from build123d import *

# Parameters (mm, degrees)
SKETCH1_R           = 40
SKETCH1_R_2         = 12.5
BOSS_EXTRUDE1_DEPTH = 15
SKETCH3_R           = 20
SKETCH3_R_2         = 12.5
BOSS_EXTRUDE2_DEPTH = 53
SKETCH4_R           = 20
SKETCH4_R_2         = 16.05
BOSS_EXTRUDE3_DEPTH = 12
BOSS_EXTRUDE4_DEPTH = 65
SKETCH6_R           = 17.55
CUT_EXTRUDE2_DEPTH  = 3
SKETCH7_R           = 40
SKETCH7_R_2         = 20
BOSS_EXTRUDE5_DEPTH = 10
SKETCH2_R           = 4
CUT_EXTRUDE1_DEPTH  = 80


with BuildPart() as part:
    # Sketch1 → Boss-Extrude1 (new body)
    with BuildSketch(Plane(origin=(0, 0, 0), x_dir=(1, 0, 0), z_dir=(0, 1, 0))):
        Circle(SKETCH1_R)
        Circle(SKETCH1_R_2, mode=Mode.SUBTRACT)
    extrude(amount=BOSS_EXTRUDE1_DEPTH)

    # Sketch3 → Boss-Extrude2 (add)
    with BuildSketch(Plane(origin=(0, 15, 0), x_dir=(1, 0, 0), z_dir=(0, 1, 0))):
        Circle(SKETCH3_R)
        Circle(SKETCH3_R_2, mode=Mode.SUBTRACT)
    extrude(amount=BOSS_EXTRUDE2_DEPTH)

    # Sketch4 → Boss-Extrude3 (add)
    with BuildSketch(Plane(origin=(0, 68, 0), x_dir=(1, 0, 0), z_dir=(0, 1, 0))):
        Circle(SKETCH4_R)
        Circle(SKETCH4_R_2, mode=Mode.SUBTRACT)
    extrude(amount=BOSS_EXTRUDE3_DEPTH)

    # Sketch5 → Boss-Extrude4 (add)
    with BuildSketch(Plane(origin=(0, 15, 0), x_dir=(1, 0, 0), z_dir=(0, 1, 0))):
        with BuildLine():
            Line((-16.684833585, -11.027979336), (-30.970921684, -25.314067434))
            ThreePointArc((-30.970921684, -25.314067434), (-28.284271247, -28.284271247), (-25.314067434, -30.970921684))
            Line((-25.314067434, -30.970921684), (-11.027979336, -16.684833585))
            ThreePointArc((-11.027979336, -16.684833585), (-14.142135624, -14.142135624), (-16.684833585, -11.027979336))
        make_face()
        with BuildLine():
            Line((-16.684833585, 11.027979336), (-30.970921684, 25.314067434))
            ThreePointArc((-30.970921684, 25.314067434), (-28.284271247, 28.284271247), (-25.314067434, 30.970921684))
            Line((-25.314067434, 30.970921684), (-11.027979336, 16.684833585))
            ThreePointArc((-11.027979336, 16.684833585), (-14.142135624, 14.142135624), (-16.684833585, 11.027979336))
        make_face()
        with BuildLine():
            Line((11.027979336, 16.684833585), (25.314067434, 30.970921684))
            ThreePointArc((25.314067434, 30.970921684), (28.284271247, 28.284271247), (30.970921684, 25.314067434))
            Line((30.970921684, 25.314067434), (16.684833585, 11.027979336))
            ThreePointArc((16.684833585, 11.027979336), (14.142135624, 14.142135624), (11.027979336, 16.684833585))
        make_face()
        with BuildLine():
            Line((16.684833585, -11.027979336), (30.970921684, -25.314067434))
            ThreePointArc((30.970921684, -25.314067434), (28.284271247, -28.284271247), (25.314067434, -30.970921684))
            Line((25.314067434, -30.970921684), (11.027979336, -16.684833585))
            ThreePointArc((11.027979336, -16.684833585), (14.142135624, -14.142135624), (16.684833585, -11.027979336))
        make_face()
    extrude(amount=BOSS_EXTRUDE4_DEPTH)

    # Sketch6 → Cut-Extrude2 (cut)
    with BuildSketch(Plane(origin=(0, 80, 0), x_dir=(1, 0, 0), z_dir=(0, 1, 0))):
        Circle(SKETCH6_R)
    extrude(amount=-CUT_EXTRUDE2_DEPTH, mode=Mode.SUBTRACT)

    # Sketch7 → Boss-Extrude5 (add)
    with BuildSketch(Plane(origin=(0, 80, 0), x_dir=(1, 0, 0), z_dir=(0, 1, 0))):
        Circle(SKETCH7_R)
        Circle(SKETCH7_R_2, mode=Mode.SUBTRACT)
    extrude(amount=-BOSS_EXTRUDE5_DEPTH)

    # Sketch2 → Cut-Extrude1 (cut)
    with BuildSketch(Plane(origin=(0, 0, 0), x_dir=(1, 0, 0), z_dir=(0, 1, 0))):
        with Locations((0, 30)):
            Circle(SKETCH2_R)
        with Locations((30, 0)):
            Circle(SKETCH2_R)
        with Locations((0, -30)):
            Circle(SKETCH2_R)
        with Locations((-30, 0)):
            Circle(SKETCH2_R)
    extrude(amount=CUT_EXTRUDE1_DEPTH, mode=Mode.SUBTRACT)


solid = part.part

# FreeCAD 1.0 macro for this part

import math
import FreeCAD as App
import Part
import Sketcher

V = App.Vector

doc = App.newDocument("Part")
body = doc.addObject("PartDesign::Body", "Body")

sketch1 = body.newObject("Sketcher::SketchObject", "Sketch")
sketch1.AttachmentSupport = (doc.getObject("XZ_Plane"), [""])
sketch1.MapMode = "FlatFace"
sketch1.addGeometry(Part.Circle(V(0, 0, 0), V(0, 0, 1), 40), False)
sketch1.addGeometry(Part.Circle(V(0, 0, 0), V(0, 0, 1), 12), False)
sketch1.addConstraint(Sketcher.Constraint("Coincident", 0, 3, -1, 1))
sketch1.addConstraint(Sketcher.Constraint("Coincident", 1, 3, -1, 1))
sketch1.addConstraint(Sketcher.Constraint("Diameter", 0, 80.0))
sketch1.addConstraint(Sketcher.Constraint("Diameter", 1, 25.0))
pad1 = body.newObject("PartDesign::Pad", "Pad")
pad1.Profile = sketch1
pad1.Length = 15
pad1.Reversed = True

sketch2 = body.newObject("Sketcher::SketchObject", "Sketch001")
sketch2.AttachmentSupport = (doc.getObject("XZ_Plane"), [""])
sketch2.MapMode = "FlatFace"
sketch2.AttachmentOffset = App.Placement(V(0, 0, -15), App.Rotation())
sketch2.addGeometry(Part.Circle(V(0, 0, 0), V(0, 0, 1), 20), False)
sketch2.addGeometry(Part.Circle(V(0, 0, 0), V(0, 0, 1), 12), False)
sketch2.addConstraint(Sketcher.Constraint("Coincident", 0, 3, -1, 1))
sketch2.addConstraint(Sketcher.Constraint("Coincident", 1, 3, -1, 1))
sketch2.addConstraint(Sketcher.Constraint("Diameter", 0, 40.0))
sketch2.addConstraint(Sketcher.Constraint("Diameter", 1, 25.0))
pad2 = body.newObject("PartDesign::Pad", "Pad001")
pad2.Profile = sketch2
pad2.Length = 53
pad2.Reversed = True

sketch3 = body.newObject("Sketcher::SketchObject", "Sketch002")
sketch3.AttachmentSupport = (doc.getObject("XZ_Plane"), [""])
sketch3.MapMode = "FlatFace"
sketch3.AttachmentOffset = App.Placement(V(0, 0, -68), App.Rotation())
sketch3.addGeometry(Part.Circle(V(0, 0, 0), V(0, 0, 1), 20), False)
sketch3.addGeometry(Part.Circle(V(0, 0, 0), V(0, 0, 1), 16), False)
sketch3.addConstraint(Sketcher.Constraint("Coincident", 0, 3, -1, 1))
sketch3.addConstraint(Sketcher.Constraint("Coincident", 1, 3, -1, 1))
sketch3.addConstraint(Sketcher.Constraint("Diameter", 0, 40.0))
sketch3.addConstraint(Sketcher.Constraint("Diameter", 1, 32.1))
pad3 = body.newObject("PartDesign::Pad", "Pad002")
pad3.Profile = sketch3
pad3.Length = 12
pad3.Reversed = True

sketch4 = body.newObject("Sketcher::SketchObject", "Sketch003")
sketch4.AttachmentSupport = (doc.getObject("XZ_Plane"), [""])
sketch4.MapMode = "FlatFace"
sketch4.AttachmentOffset = App.Placement(V(0, 0, -15), App.Rotation())
sketch4.addGeometry(Part.LineSegment(V(-17, 11, 0), V(-31, 25, 0)), False)
sketch4.addGeometry(Part.ArcOfCircle(Part.Circle(V(0, 0, 0), V(0, 0, 1), 40), math.radians(129.26), math.radians(140.74)), False)
sketch4.addGeometry(Part.LineSegment(V(-25, 31, 0), V(-11, 17, 0)), False)
sketch4.addGeometry(Part.ArcOfCircle(Part.Circle(V(0, 0, 0), V(0, 0, 1), 20), math.radians(123), math.radians(147)), False)
sketch4.addGeometry(Part.LineSegment(V(-31, -25, 0), V(-17, -11, 0)), False)
sketch4.addGeometry(Part.ArcOfCircle(Part.Circle(V(0, 0, 0), V(0, 0, 1), 20), math.radians(-147), math.radians(-123)), False)
sketch4.addGeometry(Part.LineSegment(V(-11, -17, 0), V(-25, -31, 0)), False)
sketch4.addGeometry(Part.ArcOfCircle(Part.Circle(V(0, 0, 0), V(0, 0, 1), 40), math.radians(-140.74), math.radians(-129.26)), False)
sketch4.addGeometry(Part.LineSegment(V(25, -31, 0), V(11, -17, 0)), False)
sketch4.addGeometry(Part.ArcOfCircle(Part.Circle(V(0, 0, 0), V(0, 0, 1), 20), math.radians(-57), math.radians(-33)), False)
sketch4.addGeometry(Part.LineSegment(V(17, -11, 0), V(31, -25, 0)), False)
sketch4.addGeometry(Part.ArcOfCircle(Part.Circle(V(0, 0, 0), V(0, 0, 1), 40), math.radians(-50.74), math.radians(-39.26)), False)
sketch4.addGeometry(Part.LineSegment(V(31, 25, 0), V(17, 11, 0)), False)
sketch4.addGeometry(Part.ArcOfCircle(Part.Circle(V(0, 0, 0), V(0, 0, 1), 20), math.radians(33), math.radians(57)), False)
sketch4.addGeometry(Part.LineSegment(V(11, 17, 0), V(25, 31, 0)), False)
sketch4.addGeometry(Part.ArcOfCircle(Part.Circle(V(0, 0, 0), V(0, 0, 1), 40), math.radians(39.26), math.radians(50.74)), False)
sketch4.addConstraint(Sketcher.Constraint("Coincident", 0, 2, 1, 2))
sketch4.addConstraint(Sketcher.Constraint("Coincident", 1, 1, 2, 1))
sketch4.addConstraint(Sketcher.Constraint("Coincident", 2, 2, 3, 1))
sketch4.addConstraint(Sketcher.Constraint("Coincident", 3, 2, 0, 1))
sketch4.addConstraint(Sketcher.Constraint("Coincident", 4, 2, 5, 1))
sketch4.addConstraint(Sketcher.Constraint("Coincident", 5, 2, 6, 1))
sketch4.addConstraint(Sketcher.Constraint("Coincident", 6, 2, 7, 2))
sketch4.addConstraint(Sketcher.Constraint("Coincident", 7, 1, 4, 1))
sketch4.addConstraint(Sketcher.Constraint("Coincident", 8, 2, 9, 1))
sketch4.addConstraint(Sketcher.Constraint("Coincident", 9, 2, 10, 1))
sketch4.addConstraint(Sketcher.Constraint("Coincident", 10, 2, 11, 2))
sketch4.addConstraint(Sketcher.Constraint("Coincident", 11, 1, 8, 1))
sketch4.addConstraint(Sketcher.Constraint("Coincident", 12, 2, 13, 1))
sketch4.addConstraint(Sketcher.Constraint("Coincident", 13, 2, 14, 1))
sketch4.addConstraint(Sketcher.Constraint("Coincident", 14, 2, 15, 2))
sketch4.addConstraint(Sketcher.Constraint("Coincident", 15, 1, 12, 1))
sketch4.addConstraint(Sketcher.Constraint("Coincident", 1, 3, -1, 1))
sketch4.addConstraint(Sketcher.Constraint("Coincident", 3, 3, -1, 1))
sketch4.addConstraint(Sketcher.Constraint("Coincident", 5, 3, -1, 1))
sketch4.addConstraint(Sketcher.Constraint("Coincident", 7, 3, -1, 1))
sketch4.addConstraint(Sketcher.Constraint("Coincident", 9, 3, -1, 1))
sketch4.addConstraint(Sketcher.Constraint("Coincident", 11, 3, -1, 1))
sketch4.addConstraint(Sketcher.Constraint("Coincident", 13, 3, -1, 1))
sketch4.addConstraint(Sketcher.Constraint("Coincident", 15, 3, -1, 1))
sketch4.addConstraint(Sketcher.Constraint("Equal", 3, 5))
sketch4.addConstraint(Sketcher.Constraint("Equal", 1, 7))
sketch4.addConstraint(Sketcher.Constraint("Equal", 5, 9))
sketch4.addConstraint(Sketcher.Constraint("Equal", 7, 11))
sketch4.addConstraint(Sketcher.Constraint("Equal", 9, 13))
sketch4.addConstraint(Sketcher.Constraint("Equal", 11, 15))
sketch4.addConstraint(Sketcher.Constraint("Parallel", 0, 2))
sketch4.addConstraint(Sketcher.Constraint("Perpendicular", 2, 4))
sketch4.addConstraint(Sketcher.Constraint("Parallel", 4, 6))
sketch4.addConstraint(Sketcher.Constraint("Perpendicular", 6, 8))
sketch4.addConstraint(Sketcher.Constraint("Parallel", 8, 10))
sketch4.addConstraint(Sketcher.Constraint("Perpendicular", 10, 12))
sketch4.addConstraint(Sketcher.Constraint("Parallel", 12, 14))
sketch4.addConstraint(Sketcher.Constraint("Horizontal", 5, 2, 8, 2))
sketch4.addConstraint(Sketcher.Constraint("Horizontal", 4, 2, 9, 2))
sketch4.addConstraint(Sketcher.Constraint("Horizontal", 7, 1, 10, 2))
sketch4.addConstraint(Sketcher.Constraint("Horizontal", 3, 2, 12, 2))
sketch4.addConstraint(Sketcher.Constraint("Horizontal", 2, 2, 13, 2))
sketch4.addConstraint(Sketcher.Constraint("Vertical", 3, 2, 4, 2))
sketch4.addConstraint(Sketcher.Constraint("Vertical", 2, 2, 5, 2))
sketch4.addConstraint(Sketcher.Constraint("Equal", 0, 2))
sketch4.addConstraint(Sketcher.Constraint("Radius", 1, 40.0))
sketch4.addConstraint(Sketcher.Constraint("Radius", 3, 20.0))
sketch4.addConstraint(Sketcher.Constraint("Distance", 0, 20.20358))
pad4 = body.newObject("PartDesign::Pad", "Pad003")
pad4.Profile = sketch4
pad4.Length = 65
pad4.Reversed = True

sketch5 = body.newObject("Sketcher::SketchObject", "Sketch004")
sketch5.AttachmentSupport = (doc.getObject("XZ_Plane"), [""])
sketch5.MapMode = "FlatFace"
sketch5.AttachmentOffset = App.Placement(V(0, 0, -80), App.Rotation())
sketch5.addGeometry(Part.Circle(V(0, 0, 0), V(0, 0, 1), 18), False)
sketch5.addConstraint(Sketcher.Constraint("Coincident", 0, 3, -1, 1))
sketch5.addConstraint(Sketcher.Constraint("Diameter", 0, 35.1))
pocket1 = body.newObject("PartDesign::Pocket", "Pocket")
pocket1.Profile = sketch5
pocket1.Length = 3
pocket1.Reversed = True

sketch6 = body.newObject("Sketcher::SketchObject", "Sketch005")
sketch6.AttachmentSupport = (doc.getObject("XZ_Plane"), [""])
sketch6.MapMode = "FlatFace"
sketch6.AttachmentOffset = App.Placement(V(0, 0, -80), App.Rotation())
sketch6.addGeometry(Part.Circle(V(0, 0, 0), V(0, 0, 1), 40), False)
sketch6.addGeometry(Part.Circle(V(0, 0, 0), V(0, 0, 1), 20), False)
sketch6.addConstraint(Sketcher.Constraint("Coincident", 0, 3, -1, 1))
sketch6.addConstraint(Sketcher.Constraint("Coincident", 1, 3, -1, 1))
sketch6.addConstraint(Sketcher.Constraint("Diameter", 0, 80.0))
sketch6.addConstraint(Sketcher.Constraint("Diameter", 1, 40.0))
pad5 = body.newObject("PartDesign::Pad", "Pad004")
pad5.Profile = sketch6
pad5.Length = 10

sketch7 = body.newObject("Sketcher::SketchObject", "Sketch006")
sketch7.AttachmentSupport = (doc.getObject("XZ_Plane"), [""])
sketch7.MapMode = "FlatFace"
sketch7.addGeometry(Part.Circle(V(0, -30, 0), V(0, 0, 1), 4), False)
sketch7.addGeometry(Part.Circle(V(30, 0, 0), V(0, 0, 1), 4), False)
sketch7.addGeometry(Part.Circle(V(0, 30, 0), V(0, 0, 1), 4), False)
sketch7.addGeometry(Part.Circle(V(-30, 0, 0), V(0, 0, 1), 4), False)
sketch7.addConstraint(Sketcher.Constraint("Equal", 0, 1))
sketch7.addConstraint(Sketcher.Constraint("Equal", 1, 2))
sketch7.addConstraint(Sketcher.Constraint("Equal", 2, 3))
sketch7.addConstraint(Sketcher.Constraint("Symmetric", 0, 3, 2, 3, -1, 1))
sketch7.addConstraint(Sketcher.Constraint("Symmetric", 1, 3, 3, 3, -1, 1))
sketch7.addConstraint(Sketcher.Constraint("PointOnObject", 0, 3, -2))
sketch7.addConstraint(Sketcher.Constraint("PointOnObject", 1, 3, -1))
sketch7.addConstraint(Sketcher.Constraint("Diameter", 0, 8.0))
sketch7.addConstraint(Sketcher.Constraint("DistanceY", 0, 3, -1, 1, 30.0))
sketch7.addConstraint(Sketcher.Constraint("DistanceX", -1, 1, 1, 3, 30.0))
pocket2 = body.newObject("PartDesign::Pocket", "Pocket001")
pocket2.Profile = sketch7
pocket2.Length = 80

doc.recompute()
